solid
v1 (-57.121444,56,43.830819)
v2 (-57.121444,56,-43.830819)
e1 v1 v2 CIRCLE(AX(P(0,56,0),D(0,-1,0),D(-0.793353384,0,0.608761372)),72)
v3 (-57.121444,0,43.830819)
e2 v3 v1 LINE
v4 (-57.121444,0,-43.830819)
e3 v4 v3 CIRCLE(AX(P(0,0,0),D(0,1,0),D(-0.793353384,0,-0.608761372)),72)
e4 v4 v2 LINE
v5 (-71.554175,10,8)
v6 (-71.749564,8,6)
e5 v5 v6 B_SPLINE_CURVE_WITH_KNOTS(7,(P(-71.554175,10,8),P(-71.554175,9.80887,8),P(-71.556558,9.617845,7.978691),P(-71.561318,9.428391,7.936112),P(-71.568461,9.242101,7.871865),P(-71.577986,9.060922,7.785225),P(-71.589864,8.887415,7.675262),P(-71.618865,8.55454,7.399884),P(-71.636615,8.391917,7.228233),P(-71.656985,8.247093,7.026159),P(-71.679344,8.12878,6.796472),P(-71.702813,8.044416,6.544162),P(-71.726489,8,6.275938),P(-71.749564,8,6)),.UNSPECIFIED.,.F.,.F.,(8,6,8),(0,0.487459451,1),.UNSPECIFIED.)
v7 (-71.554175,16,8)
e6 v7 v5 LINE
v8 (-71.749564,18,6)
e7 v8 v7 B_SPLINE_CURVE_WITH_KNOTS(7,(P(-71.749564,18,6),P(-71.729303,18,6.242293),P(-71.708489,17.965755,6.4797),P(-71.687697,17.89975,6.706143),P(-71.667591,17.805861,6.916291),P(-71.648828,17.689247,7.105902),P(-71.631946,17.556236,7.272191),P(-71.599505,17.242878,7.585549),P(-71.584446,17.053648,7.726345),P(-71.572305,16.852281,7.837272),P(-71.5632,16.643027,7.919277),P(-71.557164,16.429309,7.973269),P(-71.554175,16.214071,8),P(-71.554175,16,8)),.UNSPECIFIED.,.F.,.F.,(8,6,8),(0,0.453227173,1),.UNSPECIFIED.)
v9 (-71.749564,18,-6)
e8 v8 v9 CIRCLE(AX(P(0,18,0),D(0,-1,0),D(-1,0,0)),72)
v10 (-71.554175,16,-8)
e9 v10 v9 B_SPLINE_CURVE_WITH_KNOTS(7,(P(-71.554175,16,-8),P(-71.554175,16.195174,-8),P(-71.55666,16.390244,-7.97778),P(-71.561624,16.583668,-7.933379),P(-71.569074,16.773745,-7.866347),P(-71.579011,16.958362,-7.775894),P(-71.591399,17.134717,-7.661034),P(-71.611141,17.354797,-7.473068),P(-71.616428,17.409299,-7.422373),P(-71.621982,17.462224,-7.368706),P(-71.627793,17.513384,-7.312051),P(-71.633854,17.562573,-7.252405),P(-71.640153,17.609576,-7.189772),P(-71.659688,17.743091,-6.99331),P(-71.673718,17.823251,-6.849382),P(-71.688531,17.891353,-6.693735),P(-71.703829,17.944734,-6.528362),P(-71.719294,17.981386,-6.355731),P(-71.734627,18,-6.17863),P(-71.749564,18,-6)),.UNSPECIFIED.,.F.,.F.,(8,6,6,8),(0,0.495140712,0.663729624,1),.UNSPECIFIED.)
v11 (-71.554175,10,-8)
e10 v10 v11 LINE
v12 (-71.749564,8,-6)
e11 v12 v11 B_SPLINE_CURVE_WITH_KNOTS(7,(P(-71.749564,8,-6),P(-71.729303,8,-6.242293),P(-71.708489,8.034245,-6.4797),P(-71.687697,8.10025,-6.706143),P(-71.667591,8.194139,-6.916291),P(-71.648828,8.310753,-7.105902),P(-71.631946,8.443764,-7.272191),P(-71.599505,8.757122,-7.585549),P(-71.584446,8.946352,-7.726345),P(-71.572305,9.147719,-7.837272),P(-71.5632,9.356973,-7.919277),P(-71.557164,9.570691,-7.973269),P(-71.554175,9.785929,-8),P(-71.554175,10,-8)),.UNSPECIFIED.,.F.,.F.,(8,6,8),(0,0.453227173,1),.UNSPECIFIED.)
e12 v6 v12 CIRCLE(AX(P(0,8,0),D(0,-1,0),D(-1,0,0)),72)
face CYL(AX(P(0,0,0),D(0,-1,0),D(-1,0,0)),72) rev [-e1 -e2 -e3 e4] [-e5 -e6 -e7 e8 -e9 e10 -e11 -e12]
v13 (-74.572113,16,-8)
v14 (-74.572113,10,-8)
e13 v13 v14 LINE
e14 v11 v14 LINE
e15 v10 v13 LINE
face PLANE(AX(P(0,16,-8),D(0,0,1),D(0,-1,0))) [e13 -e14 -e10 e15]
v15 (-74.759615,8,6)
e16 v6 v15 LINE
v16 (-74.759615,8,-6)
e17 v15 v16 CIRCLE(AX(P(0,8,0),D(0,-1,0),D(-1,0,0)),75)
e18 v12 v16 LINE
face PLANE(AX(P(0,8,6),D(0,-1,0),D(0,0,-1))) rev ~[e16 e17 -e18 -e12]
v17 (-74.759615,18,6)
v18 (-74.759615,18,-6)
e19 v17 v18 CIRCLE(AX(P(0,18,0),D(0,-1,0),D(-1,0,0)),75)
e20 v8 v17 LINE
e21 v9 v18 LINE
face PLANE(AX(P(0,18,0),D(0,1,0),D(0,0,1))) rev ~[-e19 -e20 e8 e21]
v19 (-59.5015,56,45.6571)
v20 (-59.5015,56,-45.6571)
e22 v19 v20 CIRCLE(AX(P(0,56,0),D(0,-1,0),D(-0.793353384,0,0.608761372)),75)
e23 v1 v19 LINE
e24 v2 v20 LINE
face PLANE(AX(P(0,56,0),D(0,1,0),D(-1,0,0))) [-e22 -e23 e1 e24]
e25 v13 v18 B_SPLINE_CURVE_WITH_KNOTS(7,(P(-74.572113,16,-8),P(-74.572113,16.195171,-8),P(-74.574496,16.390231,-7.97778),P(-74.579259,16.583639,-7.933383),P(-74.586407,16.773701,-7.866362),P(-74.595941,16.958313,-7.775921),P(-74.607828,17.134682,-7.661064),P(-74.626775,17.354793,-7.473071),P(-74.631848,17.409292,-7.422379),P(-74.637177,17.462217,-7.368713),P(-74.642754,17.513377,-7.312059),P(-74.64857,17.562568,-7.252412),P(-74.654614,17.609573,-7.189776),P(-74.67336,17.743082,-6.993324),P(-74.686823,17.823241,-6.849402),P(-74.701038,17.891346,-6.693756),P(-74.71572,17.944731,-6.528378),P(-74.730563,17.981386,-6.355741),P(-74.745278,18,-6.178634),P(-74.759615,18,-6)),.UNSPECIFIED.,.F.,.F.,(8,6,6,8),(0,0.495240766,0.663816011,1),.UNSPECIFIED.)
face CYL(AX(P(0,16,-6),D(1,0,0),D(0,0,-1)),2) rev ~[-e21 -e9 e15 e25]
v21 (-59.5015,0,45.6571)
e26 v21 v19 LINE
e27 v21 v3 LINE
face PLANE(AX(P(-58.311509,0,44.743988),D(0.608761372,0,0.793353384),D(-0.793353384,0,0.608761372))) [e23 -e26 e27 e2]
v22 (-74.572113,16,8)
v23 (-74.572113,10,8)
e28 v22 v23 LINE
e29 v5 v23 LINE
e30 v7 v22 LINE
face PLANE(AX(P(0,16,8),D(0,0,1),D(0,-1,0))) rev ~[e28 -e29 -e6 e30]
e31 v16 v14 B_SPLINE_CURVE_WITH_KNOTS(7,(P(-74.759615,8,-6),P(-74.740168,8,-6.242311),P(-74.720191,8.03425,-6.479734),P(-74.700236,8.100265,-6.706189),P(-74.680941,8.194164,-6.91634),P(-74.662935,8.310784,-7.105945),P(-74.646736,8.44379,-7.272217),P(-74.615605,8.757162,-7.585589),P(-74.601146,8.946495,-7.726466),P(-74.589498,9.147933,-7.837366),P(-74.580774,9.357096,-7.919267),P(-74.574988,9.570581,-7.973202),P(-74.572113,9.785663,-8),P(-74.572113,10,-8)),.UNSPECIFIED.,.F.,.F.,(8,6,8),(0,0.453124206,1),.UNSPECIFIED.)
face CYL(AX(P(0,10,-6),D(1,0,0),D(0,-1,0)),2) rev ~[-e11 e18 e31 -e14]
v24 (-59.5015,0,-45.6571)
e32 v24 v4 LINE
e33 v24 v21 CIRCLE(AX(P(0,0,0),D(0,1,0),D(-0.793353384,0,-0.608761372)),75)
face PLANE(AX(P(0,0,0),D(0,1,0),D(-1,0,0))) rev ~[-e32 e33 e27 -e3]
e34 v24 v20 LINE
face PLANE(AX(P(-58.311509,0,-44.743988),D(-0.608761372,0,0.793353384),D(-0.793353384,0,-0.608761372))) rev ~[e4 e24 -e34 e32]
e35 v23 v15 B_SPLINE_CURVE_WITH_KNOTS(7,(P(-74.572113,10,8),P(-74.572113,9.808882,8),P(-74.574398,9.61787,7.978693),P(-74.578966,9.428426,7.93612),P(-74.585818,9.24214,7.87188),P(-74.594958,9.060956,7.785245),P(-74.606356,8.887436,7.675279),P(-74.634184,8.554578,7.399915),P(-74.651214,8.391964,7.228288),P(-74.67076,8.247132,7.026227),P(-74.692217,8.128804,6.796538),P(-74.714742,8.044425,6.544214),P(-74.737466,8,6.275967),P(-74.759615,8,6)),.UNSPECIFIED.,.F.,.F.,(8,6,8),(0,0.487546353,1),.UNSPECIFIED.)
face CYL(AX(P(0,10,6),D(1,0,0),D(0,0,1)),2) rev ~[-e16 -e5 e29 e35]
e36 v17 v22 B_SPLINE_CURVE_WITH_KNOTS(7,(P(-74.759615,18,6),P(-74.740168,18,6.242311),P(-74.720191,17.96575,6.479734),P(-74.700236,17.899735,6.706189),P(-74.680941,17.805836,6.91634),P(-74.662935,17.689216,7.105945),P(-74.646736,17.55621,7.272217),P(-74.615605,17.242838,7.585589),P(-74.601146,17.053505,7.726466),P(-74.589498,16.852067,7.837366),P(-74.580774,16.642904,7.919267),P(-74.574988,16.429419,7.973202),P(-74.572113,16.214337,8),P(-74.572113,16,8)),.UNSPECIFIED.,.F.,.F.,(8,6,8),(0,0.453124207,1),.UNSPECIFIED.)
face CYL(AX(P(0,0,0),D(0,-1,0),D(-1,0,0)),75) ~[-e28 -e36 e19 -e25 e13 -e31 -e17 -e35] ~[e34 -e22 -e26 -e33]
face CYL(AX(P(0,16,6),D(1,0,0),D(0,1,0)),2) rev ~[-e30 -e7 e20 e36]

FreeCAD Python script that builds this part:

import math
import FreeCAD as App
import Part
import Sketcher
Q = App.Units.Quantity

doc = App.newDocument("Part")
body = doc.addObject("PartDesign::Body", "Body")

# Sketch on XZ plane
sketch1 = body.newObject("Sketcher::SketchObject", "Sketch")
sketch1.AttachmentSupport = (doc.getObject("XZ_Plane"), [""])
sketch1.MapMode = "FlatFace"
sketch1.addGeometry([
    Part.LineSegment(App.Vector(-59.5, 45.7, 0), App.Vector(-57.1, 43.8, 0)),
    Part.ArcOfCircle(Part.Circle(App.Vector(0, 0, 0), App.Vector(0, 0, 1), 72), math.radians(143), math.radians(217)),
    Part.LineSegment(App.Vector(-57.1, -43.8, 0), App.Vector(-59.5, -45.7, 0)),
    Part.ArcOfCircle(Part.Circle(App.Vector(0, 0, 0), App.Vector(0, 0, 1), 75), math.radians(143), math.radians(217)),
], False)
sketch1.addConstraint([
    Sketcher.Constraint("Coincident", 0, 2, 1, 1),
    Sketcher.Constraint("Coincident", 1, 2, 2, 1),
    Sketcher.Constraint("Coincident", 2, 2, 3, 2),
    Sketcher.Constraint("Coincident", 3, 1, 0, 1),
    Sketcher.Constraint("Coincident", 1, 3, -1, 1),
    Sketcher.Constraint("Coincident", 3, 3, -1, 1),
    Sketcher.Constraint("Vertical", 0, 2, 1, 2),
    Sketcher.Constraint("Vertical", 2, 2, 3, 1),
    Sketcher.Constraint("Radius", 3, Q("75 mm")),
    Sketcher.Constraint("Distance", 0, Q("3 mm")),
    Sketcher.Constraint("Angle", 0, Q("-37.5 deg")),
    Sketcher.Constraint("DistanceY", 2, 2, -1, 1, Q("45.657 mm")),
])
pad1 = body.newObject("PartDesign::Pad", "Pad")
pad1.Profile = sketch1
pad1.Length = 56
pad1.Reversed = True

# Sketch on YZ plane
sketch2 = body.newObject("Sketcher::SketchObject", "Sketch001")
sketch2.AttachmentSupport = (doc.getObject("YZ_Plane"), [""])
sketch2.MapMode = "FlatFace"
sketch2.addGeometry([
    Part.LineSegment(App.Vector(8, 6, 0), App.Vector(8, -6, 0)),  # 0
    Part.ArcOfCircle(Part.Circle(App.Vector(10, -6, 0), App.Vector(0, 0, 1), 2), math.radians(180), math.radians(270)),  # 1
    Part.LineSegment(App.Vector(10, -8, 0), App.Vector(16, -8, 0)),  # 2
    Part.ArcOfCircle(Part.Circle(App.Vector(16, -6, 0), App.Vector(0, 0, 1), 2), math.radians(-90), math.radians(0)),  # 3
    Part.LineSegment(App.Vector(18, -6, 0), App.Vector(18, 6, 0)),  # 4
    Part.ArcOfCircle(Part.Circle(App.Vector(16, 6, 0), App.Vector(0, 0, 1), 2), math.radians(0), math.radians(90)),  # 5
    Part.LineSegment(App.Vector(16, 8, 0), App.Vector(10, 8, 0)),  # 6
    Part.ArcOfCircle(Part.Circle(App.Vector(10, 6, 0), App.Vector(0, 0, 1), 2), math.radians(90), math.radians(180)),  # 7
], False)
sketch2.addConstraint([
    Sketcher.Constraint("Tangent", 0, 2, 1, 1),
    Sketcher.Constraint("Tangent", 1, 2, 2, 1),
    Sketcher.Constraint("Tangent", 2, 2, 3, 1),
    Sketcher.Constraint("Tangent", 3, 2, 4, 1),
    Sketcher.Constraint("Tangent", 4, 2, 5, 1),
    Sketcher.Constraint("Tangent", 5, 2, 6, 1),
    Sketcher.Constraint("Tangent", 6, 2, 7, 1),
    Sketcher.Constraint("Tangent", 7, 2, 0, 1),
    Sketcher.Constraint("Vertical", 0),
    Sketcher.Constraint("Horizontal", 2),
    Sketcher.Constraint("Vertical", 4),
    Sketcher.Constraint("Horizontal", 6),
    Sketcher.Constraint("Equal", 1, 3),
    Sketcher.Constraint("Equal", 3, 5),
    Sketcher.Constraint("Equal", 5, 7),
    Sketcher.Constraint("Radius", 1, Q("2 mm")),
    Sketcher.Constraint("DistanceX", -1, 1, 1, 3, Q("10 mm")),
    Sketcher.Constraint("DistanceY", 1, 2, -1, 1, Q("8 mm")),
    Sketcher.Constraint("DistanceY", -1, 1, 5, 2, Q("8 mm")),
    Sketcher.Constraint("DistanceX", 0, 2, 3, 3, Q("8 mm")),
])
pocket1 = body.newObject("PartDesign::Pocket", "Pocket")
pocket1.Profile = sketch2
pocket1.Length = 100

doc.recompute()
